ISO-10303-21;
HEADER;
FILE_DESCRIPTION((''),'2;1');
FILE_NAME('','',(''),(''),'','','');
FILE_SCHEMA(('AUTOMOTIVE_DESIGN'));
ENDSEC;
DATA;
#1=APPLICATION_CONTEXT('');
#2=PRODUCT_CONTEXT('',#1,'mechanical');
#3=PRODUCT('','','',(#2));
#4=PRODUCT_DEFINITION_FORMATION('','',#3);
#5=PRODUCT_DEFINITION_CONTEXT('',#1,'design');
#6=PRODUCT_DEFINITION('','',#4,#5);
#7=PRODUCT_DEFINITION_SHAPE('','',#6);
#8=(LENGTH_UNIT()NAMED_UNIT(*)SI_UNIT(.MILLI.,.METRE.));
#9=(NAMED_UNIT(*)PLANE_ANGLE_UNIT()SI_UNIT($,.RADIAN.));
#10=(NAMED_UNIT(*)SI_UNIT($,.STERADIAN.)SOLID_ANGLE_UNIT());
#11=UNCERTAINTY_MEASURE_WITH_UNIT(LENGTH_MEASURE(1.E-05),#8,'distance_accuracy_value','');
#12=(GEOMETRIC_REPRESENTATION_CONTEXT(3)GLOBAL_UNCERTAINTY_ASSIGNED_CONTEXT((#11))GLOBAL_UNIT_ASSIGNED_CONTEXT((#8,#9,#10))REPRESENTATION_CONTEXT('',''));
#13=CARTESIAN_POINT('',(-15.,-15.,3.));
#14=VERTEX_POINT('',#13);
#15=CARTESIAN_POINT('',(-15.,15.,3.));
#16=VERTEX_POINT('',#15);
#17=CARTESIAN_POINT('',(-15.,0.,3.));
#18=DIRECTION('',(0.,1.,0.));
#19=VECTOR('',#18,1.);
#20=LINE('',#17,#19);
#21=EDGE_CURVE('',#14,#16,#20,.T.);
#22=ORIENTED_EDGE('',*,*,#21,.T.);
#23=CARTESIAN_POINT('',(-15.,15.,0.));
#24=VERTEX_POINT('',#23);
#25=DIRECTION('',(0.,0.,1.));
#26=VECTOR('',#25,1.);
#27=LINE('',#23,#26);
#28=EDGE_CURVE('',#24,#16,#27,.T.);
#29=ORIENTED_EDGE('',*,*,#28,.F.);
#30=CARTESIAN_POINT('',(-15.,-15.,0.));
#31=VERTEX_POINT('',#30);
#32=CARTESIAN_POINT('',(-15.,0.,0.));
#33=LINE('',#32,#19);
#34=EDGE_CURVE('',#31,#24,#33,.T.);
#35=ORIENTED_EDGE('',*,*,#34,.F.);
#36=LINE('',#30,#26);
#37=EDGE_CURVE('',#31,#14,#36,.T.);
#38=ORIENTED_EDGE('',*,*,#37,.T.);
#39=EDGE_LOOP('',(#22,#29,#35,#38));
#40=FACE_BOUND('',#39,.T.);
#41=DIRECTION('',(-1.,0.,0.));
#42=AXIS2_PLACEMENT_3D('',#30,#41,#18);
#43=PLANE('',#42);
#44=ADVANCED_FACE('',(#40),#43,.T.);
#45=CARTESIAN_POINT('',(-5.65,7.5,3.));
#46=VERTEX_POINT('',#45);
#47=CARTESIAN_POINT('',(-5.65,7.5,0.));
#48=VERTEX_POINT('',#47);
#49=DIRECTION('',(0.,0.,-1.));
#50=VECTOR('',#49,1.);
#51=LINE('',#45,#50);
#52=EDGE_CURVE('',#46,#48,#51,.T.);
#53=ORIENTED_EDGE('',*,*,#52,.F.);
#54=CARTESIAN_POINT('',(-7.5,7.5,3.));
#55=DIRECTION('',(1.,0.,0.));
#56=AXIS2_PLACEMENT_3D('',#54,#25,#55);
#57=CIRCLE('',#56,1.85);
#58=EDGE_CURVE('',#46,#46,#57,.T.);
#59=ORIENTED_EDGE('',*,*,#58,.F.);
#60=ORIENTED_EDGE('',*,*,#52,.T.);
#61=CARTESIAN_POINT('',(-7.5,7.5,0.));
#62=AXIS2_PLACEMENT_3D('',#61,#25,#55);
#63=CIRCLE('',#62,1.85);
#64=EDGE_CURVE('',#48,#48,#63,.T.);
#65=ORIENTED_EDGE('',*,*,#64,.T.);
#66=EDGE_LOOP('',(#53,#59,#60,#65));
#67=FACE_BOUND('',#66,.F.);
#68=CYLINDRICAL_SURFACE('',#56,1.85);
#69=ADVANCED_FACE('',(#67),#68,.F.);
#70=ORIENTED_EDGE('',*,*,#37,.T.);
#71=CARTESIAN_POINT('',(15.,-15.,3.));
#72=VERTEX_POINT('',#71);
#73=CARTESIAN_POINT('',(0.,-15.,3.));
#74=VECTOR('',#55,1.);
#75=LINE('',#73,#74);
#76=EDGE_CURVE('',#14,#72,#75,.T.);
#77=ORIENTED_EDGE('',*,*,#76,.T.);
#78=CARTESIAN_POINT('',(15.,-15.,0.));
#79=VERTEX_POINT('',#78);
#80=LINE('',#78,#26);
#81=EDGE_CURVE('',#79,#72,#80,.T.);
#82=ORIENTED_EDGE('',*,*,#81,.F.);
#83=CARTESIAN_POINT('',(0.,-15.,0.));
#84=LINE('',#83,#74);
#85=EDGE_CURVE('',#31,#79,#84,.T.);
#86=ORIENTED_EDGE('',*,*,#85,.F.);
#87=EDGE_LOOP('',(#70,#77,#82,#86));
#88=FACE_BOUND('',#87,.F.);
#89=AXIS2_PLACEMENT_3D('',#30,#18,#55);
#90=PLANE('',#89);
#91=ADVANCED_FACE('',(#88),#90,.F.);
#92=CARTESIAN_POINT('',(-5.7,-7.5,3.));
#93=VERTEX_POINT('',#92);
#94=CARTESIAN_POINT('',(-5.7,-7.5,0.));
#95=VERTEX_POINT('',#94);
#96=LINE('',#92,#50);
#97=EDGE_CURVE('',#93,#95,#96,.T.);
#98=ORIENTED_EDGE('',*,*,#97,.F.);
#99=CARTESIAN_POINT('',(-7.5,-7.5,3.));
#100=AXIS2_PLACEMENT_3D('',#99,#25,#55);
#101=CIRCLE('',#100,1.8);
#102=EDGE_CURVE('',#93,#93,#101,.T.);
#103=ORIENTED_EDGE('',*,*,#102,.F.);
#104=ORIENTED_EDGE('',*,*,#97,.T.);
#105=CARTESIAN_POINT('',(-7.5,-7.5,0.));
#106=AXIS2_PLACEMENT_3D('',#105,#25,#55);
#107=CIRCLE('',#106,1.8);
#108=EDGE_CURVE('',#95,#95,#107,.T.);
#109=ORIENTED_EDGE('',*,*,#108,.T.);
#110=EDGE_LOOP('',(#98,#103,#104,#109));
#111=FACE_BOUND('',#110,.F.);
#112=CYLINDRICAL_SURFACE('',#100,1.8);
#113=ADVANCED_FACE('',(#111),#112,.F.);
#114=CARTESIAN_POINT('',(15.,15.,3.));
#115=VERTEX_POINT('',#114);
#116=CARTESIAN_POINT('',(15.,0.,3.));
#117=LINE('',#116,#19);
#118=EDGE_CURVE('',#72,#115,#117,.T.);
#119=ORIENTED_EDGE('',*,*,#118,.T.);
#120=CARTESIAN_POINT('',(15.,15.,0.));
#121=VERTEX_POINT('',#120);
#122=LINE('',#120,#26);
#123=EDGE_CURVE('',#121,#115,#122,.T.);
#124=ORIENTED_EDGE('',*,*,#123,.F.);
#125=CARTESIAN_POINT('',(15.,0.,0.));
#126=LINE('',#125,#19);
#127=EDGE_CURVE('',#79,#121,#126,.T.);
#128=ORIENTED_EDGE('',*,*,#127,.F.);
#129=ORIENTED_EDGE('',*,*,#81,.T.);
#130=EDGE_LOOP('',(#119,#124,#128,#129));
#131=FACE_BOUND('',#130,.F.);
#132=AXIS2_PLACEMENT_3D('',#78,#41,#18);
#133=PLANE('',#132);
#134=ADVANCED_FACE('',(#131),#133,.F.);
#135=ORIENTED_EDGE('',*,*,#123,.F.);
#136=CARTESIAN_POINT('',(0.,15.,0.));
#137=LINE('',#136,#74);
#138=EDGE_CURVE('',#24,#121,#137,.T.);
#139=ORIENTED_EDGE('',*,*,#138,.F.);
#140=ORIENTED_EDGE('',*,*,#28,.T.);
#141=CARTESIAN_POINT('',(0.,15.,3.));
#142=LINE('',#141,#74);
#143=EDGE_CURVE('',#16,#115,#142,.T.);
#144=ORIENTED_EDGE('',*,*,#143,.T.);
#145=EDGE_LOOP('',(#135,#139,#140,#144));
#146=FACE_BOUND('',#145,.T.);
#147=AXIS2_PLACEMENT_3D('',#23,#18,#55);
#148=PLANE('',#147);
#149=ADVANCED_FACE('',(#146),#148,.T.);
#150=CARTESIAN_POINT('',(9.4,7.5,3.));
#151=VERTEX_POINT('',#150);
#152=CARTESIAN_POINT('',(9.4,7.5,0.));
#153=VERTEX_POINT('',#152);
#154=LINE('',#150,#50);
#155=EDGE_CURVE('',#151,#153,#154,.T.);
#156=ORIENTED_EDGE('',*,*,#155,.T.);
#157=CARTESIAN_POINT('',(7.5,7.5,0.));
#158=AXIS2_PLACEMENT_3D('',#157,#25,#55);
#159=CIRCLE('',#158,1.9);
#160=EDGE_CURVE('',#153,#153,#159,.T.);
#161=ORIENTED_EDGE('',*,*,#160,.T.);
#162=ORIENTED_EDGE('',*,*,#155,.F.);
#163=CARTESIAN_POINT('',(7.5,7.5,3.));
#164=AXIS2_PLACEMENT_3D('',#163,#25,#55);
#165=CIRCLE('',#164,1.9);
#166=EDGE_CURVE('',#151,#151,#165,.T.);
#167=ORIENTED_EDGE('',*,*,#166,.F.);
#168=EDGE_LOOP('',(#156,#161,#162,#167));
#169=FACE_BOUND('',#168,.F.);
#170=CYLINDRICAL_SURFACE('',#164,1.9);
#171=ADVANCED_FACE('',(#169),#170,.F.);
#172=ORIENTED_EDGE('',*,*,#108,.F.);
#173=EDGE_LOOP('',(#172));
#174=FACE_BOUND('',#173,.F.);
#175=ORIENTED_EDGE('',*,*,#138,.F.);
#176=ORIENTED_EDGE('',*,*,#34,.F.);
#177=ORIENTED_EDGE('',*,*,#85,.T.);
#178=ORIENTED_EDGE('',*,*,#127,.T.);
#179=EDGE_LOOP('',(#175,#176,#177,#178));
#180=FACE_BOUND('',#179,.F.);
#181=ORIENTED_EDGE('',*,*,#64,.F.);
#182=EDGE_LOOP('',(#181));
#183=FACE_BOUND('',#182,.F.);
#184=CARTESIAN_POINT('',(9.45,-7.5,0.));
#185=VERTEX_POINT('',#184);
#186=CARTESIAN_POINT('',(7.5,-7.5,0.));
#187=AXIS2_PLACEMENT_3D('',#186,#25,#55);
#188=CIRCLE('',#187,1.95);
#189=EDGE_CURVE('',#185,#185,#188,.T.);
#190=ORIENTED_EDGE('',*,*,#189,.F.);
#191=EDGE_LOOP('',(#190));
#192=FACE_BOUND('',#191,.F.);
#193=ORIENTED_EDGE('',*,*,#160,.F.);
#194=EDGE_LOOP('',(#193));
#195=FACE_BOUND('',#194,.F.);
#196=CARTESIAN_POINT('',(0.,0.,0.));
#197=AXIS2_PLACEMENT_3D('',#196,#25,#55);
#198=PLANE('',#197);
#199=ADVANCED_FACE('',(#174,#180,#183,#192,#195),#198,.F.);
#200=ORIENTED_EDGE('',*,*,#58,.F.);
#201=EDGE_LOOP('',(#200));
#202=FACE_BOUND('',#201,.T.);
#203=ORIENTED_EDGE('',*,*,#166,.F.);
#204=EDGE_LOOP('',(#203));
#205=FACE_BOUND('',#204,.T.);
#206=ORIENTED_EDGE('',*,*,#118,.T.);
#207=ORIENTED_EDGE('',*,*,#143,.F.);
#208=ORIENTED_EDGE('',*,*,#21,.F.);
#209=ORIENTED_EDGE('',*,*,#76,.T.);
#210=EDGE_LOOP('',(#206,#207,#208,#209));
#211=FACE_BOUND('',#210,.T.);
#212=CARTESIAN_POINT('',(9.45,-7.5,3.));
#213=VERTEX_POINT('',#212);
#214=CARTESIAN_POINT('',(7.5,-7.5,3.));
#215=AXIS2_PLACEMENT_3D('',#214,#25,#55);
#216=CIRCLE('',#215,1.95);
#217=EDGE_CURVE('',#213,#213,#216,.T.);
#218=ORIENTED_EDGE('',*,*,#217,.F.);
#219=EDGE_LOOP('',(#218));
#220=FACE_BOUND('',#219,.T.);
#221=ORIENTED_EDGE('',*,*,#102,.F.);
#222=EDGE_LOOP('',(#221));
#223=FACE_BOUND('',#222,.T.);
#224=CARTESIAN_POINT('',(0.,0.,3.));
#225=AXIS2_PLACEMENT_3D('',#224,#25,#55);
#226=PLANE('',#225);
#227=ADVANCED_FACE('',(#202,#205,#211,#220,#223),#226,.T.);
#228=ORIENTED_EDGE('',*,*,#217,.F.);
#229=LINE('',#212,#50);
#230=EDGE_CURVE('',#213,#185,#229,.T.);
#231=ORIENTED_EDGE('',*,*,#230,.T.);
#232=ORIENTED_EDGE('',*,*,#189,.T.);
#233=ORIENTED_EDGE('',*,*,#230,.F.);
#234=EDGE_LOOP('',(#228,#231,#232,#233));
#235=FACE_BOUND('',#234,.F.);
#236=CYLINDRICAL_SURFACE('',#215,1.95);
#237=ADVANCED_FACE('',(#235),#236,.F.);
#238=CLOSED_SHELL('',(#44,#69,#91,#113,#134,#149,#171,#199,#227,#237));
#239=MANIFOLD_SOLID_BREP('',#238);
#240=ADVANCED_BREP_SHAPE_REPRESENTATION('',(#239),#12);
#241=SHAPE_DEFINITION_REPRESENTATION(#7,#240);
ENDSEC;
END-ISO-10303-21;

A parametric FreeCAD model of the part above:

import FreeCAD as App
import Part
import Sketcher
from FreeCAD import Vector

doc = App.newDocument("Part")
params = doc.addObject("Spreadsheet::Sheet", "Params")
for row, (alias, value) in enumerate([
    ("sketch1_width", "30 mm"),
    ("pad1_length", "3 mm"),
    ("sketch2_diameter", "3.6 mm"),
    ("sketch2_diameter2", "3.9 mm"),
    ("sketch2_diameter3", "3.7 mm"),
    ("sketch2_diameter4", "3.8 mm"),
    ("pocket1_length", "3 mm"),
], start=1):
    params.set(f"A{row}", alias)
    params.set(f"B{row}", "=" + value)
    params.setAlias(f"B{row}", alias)

body = doc.addObject("PartDesign::Body", "Body")

sketch1 = body.newObject("Sketcher::SketchObject", "Sketch")
sketch1.AttachmentSupport = (doc.getObject("XY_Plane"), [""])
sketch1.MapMode = "FlatFace"
sketch1.addGeometry(Part.LineSegment(Vector(-15, 15, 0), Vector(-15, -15, 0)), False)
sketch1.addGeometry(Part.LineSegment(Vector(-15, -15, 0), Vector(15, -15, 0)), False)
sketch1.addGeometry(Part.LineSegment(Vector(15, -15, 0), Vector(15, 15, 0)), False)
sketch1.addGeometry(Part.LineSegment(Vector(15, 15, 0), Vector(-15, 15, 0)), False)
sketch1.addConstraint(Sketcher.Constraint("Coincident", 0, 2, 1, 1))
sketch1.addConstraint(Sketcher.Constraint("Coincident", 1, 2, 2, 1))
sketch1.addConstraint(Sketcher.Constraint("Coincident", 2, 2, 3, 1))
sketch1.addConstraint(Sketcher.Constraint("Coincident", 3, 2, 0, 1))
sketch1.addConstraint(Sketcher.Constraint("Vertical", 0))
sketch1.addConstraint(Sketcher.Constraint("Horizontal", 1))
sketch1.addConstraint(Sketcher.Constraint("Vertical", 2))
sketch1.addConstraint(Sketcher.Constraint("Horizontal", 3))
sketch1.addConstraint(Sketcher.Constraint("Symmetric", 0, 2, 2, 2, -1, 1))
sketch1.addConstraint(Sketcher.Constraint("Equal", 3, 0))
sketch1.addConstraint(Sketcher.Constraint("DistanceX", 1, 1, 1, 2, 30.0))
sketch1.setExpression("Constraints[10]", "Params.sketch1_width")
pad1 = body.newObject("PartDesign::Pad", "Pad")
pad1.Profile = sketch1
pad1.setExpression("Length", "Params.pad1_length")

sketch2 = body.newObject("Sketcher::SketchObject", "Sketch001")
sketch2.AttachmentSupport = (doc.getObject("XY_Plane"), [""])
sketch2.MapMode = "FlatFace"
sketch2.AttachmentOffset = App.Placement(Vector(0, 0, 3), App.Rotation())
sketch2.addGeometry(Part.Circle(Vector(-7.5, -7.5, 0), Vector(0, 0, 1), 1.8), False)
sketch2.addGeometry(Part.Circle(Vector(7.5, -7.5, 0), Vector(0, 0, 1), 1.9), False)
sketch2.addGeometry(Part.Circle(Vector(-7.5, 7.5, 0), Vector(0, 0, 1), 1.9), False)
sketch2.addGeometry(Part.Circle(Vector(7.5, 7.5, 0), Vector(0, 0, 1), 1.9), False)
sketch2.addConstraint(Sketcher.Constraint("Symmetric", 1, 3, 2, 3, -1, 1))
sketch2.addConstraint(Sketcher.Constraint("Symmetric", 0, 3, 3, 3, -1, 1))
sketch2.addConstraint(Sketcher.Constraint("Symmetric", 0, 3, 1, 3, -2))
sketch2.addConstraint(Sketcher.Constraint("Diameter", 0, 3.6))
sketch2.addConstraint(Sketcher.Constraint("Diameter", 1, 3.9))
sketch2.addConstraint(Sketcher.Constraint("Diameter", 2, 3.7))
sketch2.addConstraint(Sketcher.Constraint("Diameter", 3, 3.8))
sketch2.addConstraint(Sketcher.Constraint("DistanceX", 0, 3, 1, 3, 15.0))
sketch2.addConstraint(Sketcher.Constraint("DistanceY", 0, 3, 2, 3, 15.0))
sketch2.setExpression("Constraints[3]", "Params.sketch2_diameter")
sketch2.setExpression("Constraints[4]", "Params.sketch2_diameter2")
sketch2.setExpression("Constraints[5]", "Params.sketch2_diameter3")
sketch2.setExpression("Constraints[6]", "Params.sketch2_diameter4")
pocket1 = body.newObject("PartDesign::Pocket", "Pocket")
pocket1.Profile = sketch2
pocket1.setExpression("Length", "Params.pocket1_length")

doc.recompute()
